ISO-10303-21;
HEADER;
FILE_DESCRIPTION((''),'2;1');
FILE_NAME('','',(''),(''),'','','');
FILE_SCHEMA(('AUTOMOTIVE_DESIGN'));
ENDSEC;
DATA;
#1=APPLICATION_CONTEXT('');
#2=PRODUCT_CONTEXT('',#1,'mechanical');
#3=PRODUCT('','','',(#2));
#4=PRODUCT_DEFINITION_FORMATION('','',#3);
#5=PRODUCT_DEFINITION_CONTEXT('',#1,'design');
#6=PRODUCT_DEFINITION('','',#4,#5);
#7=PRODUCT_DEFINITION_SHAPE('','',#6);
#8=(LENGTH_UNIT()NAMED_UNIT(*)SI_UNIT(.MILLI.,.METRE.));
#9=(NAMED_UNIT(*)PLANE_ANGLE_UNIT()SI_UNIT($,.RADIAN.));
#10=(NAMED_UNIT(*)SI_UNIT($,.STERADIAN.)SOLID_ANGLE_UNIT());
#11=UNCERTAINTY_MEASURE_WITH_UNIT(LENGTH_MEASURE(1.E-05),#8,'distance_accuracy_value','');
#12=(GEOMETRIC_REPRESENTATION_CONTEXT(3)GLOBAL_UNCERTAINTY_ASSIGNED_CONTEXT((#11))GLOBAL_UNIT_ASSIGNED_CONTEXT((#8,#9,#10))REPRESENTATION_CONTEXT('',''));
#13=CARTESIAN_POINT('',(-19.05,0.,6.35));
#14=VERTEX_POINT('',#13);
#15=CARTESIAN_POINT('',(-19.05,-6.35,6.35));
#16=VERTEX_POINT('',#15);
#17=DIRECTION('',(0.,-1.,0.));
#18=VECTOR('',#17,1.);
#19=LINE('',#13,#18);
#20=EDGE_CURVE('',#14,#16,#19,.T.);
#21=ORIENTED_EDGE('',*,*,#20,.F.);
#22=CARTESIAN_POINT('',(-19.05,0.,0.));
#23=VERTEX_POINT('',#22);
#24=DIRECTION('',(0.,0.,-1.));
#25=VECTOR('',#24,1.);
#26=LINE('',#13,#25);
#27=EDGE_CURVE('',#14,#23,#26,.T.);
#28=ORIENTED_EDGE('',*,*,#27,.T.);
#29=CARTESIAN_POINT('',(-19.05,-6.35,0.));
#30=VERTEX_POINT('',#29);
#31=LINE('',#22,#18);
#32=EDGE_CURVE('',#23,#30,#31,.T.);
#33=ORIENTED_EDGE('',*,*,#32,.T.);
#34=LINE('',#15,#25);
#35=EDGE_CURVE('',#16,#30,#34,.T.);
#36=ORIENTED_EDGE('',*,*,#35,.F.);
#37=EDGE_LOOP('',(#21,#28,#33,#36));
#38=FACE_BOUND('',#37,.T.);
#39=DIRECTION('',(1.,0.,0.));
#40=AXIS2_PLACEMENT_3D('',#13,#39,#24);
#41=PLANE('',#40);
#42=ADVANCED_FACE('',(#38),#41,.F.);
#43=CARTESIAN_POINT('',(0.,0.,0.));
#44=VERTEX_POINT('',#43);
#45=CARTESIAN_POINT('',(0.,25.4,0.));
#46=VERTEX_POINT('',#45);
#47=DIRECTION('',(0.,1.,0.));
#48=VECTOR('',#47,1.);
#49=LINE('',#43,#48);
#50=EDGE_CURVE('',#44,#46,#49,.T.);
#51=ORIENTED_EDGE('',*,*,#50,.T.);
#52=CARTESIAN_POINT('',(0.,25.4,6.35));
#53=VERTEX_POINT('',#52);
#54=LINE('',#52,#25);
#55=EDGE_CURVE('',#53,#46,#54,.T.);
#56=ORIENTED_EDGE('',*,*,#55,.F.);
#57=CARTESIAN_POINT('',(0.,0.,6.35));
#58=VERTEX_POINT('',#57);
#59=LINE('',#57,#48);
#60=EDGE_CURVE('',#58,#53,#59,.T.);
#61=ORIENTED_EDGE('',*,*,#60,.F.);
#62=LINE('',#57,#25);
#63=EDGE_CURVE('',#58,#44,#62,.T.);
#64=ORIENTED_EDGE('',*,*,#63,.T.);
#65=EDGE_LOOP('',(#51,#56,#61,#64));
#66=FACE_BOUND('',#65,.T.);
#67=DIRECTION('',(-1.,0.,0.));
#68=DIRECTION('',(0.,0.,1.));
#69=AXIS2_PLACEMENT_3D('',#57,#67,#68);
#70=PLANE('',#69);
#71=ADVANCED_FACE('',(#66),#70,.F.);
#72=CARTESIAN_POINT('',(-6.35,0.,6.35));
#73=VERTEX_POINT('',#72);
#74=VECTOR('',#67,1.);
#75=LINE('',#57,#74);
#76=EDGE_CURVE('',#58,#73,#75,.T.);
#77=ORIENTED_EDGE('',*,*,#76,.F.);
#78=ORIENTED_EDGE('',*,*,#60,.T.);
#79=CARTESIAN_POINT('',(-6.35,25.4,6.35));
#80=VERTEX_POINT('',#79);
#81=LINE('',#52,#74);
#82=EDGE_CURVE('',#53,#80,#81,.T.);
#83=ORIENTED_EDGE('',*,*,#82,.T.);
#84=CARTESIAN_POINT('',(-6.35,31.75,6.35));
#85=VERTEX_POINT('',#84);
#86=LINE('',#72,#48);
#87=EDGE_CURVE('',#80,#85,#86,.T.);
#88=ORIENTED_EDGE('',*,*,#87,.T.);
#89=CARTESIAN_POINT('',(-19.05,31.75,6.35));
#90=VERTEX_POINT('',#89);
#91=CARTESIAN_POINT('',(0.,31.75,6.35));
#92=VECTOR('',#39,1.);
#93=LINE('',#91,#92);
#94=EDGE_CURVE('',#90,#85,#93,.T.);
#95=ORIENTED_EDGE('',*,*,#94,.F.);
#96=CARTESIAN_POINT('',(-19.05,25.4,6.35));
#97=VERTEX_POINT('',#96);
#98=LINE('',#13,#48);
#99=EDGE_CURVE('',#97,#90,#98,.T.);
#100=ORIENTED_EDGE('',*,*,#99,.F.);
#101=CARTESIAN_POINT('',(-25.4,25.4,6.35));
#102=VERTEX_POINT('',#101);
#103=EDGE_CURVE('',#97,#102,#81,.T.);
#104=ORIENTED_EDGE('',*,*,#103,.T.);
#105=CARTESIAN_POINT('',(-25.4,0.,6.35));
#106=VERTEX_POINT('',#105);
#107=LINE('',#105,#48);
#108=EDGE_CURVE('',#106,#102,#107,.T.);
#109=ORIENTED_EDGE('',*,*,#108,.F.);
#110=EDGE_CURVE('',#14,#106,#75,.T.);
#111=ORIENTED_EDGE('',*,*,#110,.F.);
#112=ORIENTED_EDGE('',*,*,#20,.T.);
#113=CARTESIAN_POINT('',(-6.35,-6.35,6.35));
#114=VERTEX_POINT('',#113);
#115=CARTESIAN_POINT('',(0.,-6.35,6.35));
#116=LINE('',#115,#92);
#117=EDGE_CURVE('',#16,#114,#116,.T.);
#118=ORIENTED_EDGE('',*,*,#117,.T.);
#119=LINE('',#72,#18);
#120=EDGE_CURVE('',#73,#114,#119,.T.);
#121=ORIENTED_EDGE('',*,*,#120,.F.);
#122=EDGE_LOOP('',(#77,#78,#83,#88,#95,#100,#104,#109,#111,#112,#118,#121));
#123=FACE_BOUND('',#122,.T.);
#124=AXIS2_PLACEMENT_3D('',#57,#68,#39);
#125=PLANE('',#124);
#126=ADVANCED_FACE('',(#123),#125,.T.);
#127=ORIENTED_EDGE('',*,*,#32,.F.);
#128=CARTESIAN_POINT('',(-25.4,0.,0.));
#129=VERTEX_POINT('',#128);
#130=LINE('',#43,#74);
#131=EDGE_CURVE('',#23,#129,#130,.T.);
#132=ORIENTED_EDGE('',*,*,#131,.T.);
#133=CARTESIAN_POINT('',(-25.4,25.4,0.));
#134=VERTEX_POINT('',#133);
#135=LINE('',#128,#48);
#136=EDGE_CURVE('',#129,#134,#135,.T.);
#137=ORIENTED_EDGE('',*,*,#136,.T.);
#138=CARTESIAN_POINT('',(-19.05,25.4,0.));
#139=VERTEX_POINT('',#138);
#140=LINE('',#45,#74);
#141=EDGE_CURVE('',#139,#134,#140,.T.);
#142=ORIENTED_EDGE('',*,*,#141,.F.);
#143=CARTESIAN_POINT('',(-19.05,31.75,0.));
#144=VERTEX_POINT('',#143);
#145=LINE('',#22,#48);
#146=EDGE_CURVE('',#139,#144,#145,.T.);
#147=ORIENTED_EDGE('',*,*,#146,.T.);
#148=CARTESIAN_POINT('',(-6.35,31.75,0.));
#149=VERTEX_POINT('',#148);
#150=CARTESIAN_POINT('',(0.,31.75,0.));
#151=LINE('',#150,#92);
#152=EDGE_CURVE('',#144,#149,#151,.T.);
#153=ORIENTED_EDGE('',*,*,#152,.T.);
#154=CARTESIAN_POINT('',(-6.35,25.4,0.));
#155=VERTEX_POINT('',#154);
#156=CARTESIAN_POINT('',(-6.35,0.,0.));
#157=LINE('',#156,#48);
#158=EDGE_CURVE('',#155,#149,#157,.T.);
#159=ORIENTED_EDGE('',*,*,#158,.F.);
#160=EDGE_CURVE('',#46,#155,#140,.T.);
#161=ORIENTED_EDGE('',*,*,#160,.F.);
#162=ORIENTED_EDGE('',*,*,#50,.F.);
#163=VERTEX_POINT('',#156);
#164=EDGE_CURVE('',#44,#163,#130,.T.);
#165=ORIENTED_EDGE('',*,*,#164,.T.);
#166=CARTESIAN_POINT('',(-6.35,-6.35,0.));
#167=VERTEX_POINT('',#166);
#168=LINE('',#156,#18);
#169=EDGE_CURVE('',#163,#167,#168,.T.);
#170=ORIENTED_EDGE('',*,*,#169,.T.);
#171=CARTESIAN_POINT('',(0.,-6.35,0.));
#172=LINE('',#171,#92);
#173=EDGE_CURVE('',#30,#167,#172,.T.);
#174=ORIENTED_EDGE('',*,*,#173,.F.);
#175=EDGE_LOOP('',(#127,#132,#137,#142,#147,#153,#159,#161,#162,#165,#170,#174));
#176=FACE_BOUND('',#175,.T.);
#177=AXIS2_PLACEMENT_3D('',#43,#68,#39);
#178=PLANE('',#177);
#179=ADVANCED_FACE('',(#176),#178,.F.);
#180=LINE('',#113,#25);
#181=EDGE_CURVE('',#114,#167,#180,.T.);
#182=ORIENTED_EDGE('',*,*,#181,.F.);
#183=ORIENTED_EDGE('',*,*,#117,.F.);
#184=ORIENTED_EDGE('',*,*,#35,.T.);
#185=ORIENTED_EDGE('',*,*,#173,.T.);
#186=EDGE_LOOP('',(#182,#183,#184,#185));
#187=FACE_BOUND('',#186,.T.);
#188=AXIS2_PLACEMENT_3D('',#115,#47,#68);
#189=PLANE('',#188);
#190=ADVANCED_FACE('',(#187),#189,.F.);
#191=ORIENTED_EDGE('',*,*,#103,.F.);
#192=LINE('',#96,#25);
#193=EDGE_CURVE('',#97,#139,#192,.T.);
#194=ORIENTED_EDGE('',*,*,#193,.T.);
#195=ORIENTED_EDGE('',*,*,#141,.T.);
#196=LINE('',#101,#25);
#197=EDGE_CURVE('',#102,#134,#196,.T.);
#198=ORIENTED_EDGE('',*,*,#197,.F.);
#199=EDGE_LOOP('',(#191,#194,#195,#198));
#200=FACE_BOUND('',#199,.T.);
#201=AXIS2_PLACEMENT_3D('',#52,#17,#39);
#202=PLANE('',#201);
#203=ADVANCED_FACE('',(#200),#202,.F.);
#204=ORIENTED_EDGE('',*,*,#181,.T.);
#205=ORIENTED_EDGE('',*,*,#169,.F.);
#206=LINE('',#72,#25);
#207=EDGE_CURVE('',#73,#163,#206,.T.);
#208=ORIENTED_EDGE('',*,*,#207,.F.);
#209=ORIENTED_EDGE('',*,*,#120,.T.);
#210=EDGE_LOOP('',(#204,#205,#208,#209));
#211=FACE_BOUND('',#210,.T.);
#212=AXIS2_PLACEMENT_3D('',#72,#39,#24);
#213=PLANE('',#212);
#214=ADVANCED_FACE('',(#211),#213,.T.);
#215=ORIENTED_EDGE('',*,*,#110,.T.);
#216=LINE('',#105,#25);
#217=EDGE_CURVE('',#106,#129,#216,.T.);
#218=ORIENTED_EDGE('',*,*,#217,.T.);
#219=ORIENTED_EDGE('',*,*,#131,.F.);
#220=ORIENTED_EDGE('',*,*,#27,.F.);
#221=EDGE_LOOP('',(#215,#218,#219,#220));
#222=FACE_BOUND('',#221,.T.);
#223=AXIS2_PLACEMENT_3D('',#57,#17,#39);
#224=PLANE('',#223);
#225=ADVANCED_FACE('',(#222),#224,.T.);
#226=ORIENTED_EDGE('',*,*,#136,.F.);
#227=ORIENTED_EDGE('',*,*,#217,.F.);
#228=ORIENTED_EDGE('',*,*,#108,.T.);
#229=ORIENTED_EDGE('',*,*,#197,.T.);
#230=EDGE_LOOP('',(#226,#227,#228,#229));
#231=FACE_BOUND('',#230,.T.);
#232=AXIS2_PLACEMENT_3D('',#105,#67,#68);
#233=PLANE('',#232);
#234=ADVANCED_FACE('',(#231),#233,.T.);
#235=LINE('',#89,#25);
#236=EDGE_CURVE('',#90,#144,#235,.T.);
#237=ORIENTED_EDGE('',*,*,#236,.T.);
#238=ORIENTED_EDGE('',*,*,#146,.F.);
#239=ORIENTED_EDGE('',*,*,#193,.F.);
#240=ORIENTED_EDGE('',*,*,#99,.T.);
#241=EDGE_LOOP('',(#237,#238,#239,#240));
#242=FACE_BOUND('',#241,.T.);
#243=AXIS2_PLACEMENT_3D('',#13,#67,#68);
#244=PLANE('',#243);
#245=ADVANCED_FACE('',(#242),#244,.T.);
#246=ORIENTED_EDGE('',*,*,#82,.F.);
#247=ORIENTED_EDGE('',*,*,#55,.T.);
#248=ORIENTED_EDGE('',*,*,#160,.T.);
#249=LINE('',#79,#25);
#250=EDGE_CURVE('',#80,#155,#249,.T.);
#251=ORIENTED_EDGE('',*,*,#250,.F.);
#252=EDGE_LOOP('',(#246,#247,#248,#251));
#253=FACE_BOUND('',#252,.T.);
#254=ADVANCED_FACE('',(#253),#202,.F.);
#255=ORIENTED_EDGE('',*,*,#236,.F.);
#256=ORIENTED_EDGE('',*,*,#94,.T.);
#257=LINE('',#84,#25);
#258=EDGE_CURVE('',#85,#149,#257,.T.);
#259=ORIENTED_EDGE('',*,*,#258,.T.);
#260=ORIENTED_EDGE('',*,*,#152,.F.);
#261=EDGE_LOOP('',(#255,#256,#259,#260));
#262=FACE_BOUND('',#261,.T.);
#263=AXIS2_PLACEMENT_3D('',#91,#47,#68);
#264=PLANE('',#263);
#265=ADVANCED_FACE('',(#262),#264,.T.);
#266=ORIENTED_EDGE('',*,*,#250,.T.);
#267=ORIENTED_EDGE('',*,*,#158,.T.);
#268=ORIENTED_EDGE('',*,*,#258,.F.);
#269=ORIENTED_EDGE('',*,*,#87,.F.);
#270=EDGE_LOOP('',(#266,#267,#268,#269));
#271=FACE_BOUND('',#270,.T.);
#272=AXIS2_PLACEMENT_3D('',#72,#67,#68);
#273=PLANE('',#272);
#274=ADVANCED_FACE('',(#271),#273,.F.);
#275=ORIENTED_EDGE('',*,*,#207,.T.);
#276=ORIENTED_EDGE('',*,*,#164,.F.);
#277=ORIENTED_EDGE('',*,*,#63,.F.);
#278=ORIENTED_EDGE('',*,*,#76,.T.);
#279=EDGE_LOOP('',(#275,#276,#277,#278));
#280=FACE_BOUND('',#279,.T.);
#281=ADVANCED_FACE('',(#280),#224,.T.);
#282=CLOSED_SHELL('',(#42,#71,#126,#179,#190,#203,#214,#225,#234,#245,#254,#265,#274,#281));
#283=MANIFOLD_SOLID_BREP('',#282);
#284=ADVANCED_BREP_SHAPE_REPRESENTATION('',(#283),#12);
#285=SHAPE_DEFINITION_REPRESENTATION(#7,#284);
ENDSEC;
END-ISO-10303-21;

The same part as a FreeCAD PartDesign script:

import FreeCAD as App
import Part
import Sketcher
from FreeCAD import Vector
Q = App.Units.Quantity


def add_polygon(sketch, points):
    """Adds a closed chain of lines whose ends are joined by coincident constraints."""
    first, n = sketch.GeometryCount, len(points)
    for a, b in zip(points, points[1:] + points[:1]):
        sketch.addGeometry(Part.LineSegment(App.Vector(*a, 0), App.Vector(*b, 0)), False)
    for i in range(n):
        sketch.addConstraint(Sketcher.Constraint("Coincident", first + i, 2, first + (i + 1) % n, 1))

doc = App.newDocument("Part")
body = doc.addObject("PartDesign::Body", "Body")

sketch1 = doc.addObject("Sketcher::SketchObject", "Sketch")
body.addObject(sketch1)
sketch1.AttachmentSupport = (doc.XY_Plane, [""])
sketch1.MapMode = "FlatFace"
add_polygon(sketch1, [(-25.4, 0), (-19.05, 0), (-19.05, -6.35), (-6.35, -6.35), (-6.35, 0), (0, 0), (0, 25.4), (-6.35, 25.4), (-6.35, 31.75), (-19.05, 31.75), (-19.05, 25.4), (-25.4, 25.4)])
sketch1.addConstraint(Sketcher.Constraint("Horizontal", 0))
sketch1.addConstraint(Sketcher.Constraint("Vertical", 1))
sketch1.addConstraint(Sketcher.Constraint("Horizontal", 2))
sketch1.addConstraint(Sketcher.Constraint("Vertical", 3))
sketch1.addConstraint(Sketcher.Constraint("Horizontal", 4))
sketch1.addConstraint(Sketcher.Constraint("Vertical", 5))
sketch1.addConstraint(Sketcher.Constraint("Horizontal", 6))
sketch1.addConstraint(Sketcher.Constraint("Vertical", 7))
sketch1.addConstraint(Sketcher.Constraint("Horizontal", 8))
sketch1.addConstraint(Sketcher.Constraint("Vertical", 9))
sketch1.addConstraint(Sketcher.Constraint("Horizontal", 10))
sketch1.addConstraint(Sketcher.Constraint("Vertical", 11))
sketch1.addConstraint(Sketcher.Constraint("Coincident", 4, 2, -1, 1))
sketch1.addConstraint(Sketcher.Constraint("PointOnObject", 0, 2, -1))
sketch1.addConstraint(Sketcher.Constraint("Horizontal", 6, 2, 9, 2))
sketch1.addConstraint(Sketcher.Constraint("Vertical", 3, 2, 6, 2))
sketch1.addConstraint(Sketcher.Constraint("Vertical", 1, 2, 8, 2))
sketch1.addConstraint(Sketcher.Constraint("Equal", 0, 4))
sketch1.addConstraint(Sketcher.Constraint("Equal", 10, 1))
sketch1.addConstraint(Sketcher.Constraint("Equal", 3, 7))
sketch1.addConstraint(Sketcher.Constraint("DistanceY", 5, 1, 5, 2, Q("1 in")))
sketch1.addConstraint(Sketcher.Constraint("DistanceX", 2, 1, 2, 2, Q("0.5 in")))
sketch1.addConstraint(Sketcher.Constraint("DistanceX", 10, 2, -1, 1, Q("1 in")))
pad1 = doc.addObject("PartDesign::Pad", "Pad")
body.addObject(pad1)
pad1.Profile = sketch1
pad1.Length = Q("0.25 in")

doc.recompute()
